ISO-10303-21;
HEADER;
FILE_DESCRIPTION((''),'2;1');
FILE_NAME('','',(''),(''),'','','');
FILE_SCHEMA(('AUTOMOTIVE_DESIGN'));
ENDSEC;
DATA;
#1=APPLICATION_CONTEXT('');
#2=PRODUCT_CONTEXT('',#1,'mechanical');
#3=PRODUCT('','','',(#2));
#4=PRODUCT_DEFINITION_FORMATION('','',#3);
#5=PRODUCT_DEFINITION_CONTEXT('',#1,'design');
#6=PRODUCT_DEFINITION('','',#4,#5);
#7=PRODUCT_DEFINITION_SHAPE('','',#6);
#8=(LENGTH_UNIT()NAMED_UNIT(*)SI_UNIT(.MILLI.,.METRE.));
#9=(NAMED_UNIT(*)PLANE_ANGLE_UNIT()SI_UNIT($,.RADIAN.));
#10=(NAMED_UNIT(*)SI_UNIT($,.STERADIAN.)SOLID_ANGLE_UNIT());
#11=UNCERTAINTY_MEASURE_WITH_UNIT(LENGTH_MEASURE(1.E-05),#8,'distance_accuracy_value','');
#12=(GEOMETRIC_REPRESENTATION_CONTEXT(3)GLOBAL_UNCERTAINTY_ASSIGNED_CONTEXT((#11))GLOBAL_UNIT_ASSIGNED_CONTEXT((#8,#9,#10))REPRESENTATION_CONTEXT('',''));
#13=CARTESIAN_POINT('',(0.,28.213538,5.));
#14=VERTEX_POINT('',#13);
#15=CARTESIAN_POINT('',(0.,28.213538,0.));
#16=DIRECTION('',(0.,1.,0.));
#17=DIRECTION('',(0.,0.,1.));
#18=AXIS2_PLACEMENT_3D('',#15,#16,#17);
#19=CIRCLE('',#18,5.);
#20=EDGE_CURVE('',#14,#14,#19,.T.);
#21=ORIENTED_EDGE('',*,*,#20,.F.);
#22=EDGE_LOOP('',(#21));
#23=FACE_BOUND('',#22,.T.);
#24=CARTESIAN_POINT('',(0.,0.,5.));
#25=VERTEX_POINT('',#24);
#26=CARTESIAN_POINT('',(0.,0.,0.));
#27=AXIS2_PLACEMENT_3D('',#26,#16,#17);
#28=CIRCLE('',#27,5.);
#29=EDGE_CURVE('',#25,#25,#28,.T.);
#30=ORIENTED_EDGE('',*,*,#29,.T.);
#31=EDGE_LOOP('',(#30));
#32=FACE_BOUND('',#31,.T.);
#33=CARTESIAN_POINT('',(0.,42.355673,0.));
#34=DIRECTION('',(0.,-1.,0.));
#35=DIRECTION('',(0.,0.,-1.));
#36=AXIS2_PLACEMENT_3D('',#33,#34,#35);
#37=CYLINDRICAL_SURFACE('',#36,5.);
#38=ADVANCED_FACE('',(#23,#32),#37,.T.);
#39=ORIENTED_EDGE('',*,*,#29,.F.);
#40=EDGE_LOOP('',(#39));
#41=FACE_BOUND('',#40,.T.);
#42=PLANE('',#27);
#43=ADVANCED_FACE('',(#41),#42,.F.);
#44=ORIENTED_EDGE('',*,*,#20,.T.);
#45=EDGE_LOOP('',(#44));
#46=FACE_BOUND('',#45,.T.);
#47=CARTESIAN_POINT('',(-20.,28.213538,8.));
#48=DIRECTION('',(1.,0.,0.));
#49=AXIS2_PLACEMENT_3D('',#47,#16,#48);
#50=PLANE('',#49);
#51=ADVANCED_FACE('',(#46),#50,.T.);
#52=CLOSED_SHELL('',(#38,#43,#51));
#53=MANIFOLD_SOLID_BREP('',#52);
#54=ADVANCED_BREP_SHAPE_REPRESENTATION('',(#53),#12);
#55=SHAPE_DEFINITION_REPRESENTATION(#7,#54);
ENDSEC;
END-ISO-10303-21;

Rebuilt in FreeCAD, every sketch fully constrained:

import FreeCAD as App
import Part
import Sketcher

V = App.Vector
Q = App.Units.Quantity

doc = App.newDocument("Part")
body = doc.addObject("PartDesign::Body", "Body")

# Sketch on XZ plane
sketch1 = body.newObject("Sketcher::SketchObject", "Sketch")
sketch1.AttachmentSupport = (doc.getObject("XZ_Plane"), [""])
sketch1.MapMode = "FlatFace"
sketch1.addGeometry(Part.Circle(V(0, 0, 0), V(0, 0, 1), 5), False)
sketch1.addConstraint([
    Sketcher.Constraint("Coincident", 0, 3, -1, 1),
    Sketcher.Constraint("Diameter", 0, Q("10 mm")),
])
pad1 = body.newObject("PartDesign::Pad", "Pad")
pad1.Profile = sketch1
pad1.Length = 28.213538
pad1.Reversed = True

doc.recompute()
